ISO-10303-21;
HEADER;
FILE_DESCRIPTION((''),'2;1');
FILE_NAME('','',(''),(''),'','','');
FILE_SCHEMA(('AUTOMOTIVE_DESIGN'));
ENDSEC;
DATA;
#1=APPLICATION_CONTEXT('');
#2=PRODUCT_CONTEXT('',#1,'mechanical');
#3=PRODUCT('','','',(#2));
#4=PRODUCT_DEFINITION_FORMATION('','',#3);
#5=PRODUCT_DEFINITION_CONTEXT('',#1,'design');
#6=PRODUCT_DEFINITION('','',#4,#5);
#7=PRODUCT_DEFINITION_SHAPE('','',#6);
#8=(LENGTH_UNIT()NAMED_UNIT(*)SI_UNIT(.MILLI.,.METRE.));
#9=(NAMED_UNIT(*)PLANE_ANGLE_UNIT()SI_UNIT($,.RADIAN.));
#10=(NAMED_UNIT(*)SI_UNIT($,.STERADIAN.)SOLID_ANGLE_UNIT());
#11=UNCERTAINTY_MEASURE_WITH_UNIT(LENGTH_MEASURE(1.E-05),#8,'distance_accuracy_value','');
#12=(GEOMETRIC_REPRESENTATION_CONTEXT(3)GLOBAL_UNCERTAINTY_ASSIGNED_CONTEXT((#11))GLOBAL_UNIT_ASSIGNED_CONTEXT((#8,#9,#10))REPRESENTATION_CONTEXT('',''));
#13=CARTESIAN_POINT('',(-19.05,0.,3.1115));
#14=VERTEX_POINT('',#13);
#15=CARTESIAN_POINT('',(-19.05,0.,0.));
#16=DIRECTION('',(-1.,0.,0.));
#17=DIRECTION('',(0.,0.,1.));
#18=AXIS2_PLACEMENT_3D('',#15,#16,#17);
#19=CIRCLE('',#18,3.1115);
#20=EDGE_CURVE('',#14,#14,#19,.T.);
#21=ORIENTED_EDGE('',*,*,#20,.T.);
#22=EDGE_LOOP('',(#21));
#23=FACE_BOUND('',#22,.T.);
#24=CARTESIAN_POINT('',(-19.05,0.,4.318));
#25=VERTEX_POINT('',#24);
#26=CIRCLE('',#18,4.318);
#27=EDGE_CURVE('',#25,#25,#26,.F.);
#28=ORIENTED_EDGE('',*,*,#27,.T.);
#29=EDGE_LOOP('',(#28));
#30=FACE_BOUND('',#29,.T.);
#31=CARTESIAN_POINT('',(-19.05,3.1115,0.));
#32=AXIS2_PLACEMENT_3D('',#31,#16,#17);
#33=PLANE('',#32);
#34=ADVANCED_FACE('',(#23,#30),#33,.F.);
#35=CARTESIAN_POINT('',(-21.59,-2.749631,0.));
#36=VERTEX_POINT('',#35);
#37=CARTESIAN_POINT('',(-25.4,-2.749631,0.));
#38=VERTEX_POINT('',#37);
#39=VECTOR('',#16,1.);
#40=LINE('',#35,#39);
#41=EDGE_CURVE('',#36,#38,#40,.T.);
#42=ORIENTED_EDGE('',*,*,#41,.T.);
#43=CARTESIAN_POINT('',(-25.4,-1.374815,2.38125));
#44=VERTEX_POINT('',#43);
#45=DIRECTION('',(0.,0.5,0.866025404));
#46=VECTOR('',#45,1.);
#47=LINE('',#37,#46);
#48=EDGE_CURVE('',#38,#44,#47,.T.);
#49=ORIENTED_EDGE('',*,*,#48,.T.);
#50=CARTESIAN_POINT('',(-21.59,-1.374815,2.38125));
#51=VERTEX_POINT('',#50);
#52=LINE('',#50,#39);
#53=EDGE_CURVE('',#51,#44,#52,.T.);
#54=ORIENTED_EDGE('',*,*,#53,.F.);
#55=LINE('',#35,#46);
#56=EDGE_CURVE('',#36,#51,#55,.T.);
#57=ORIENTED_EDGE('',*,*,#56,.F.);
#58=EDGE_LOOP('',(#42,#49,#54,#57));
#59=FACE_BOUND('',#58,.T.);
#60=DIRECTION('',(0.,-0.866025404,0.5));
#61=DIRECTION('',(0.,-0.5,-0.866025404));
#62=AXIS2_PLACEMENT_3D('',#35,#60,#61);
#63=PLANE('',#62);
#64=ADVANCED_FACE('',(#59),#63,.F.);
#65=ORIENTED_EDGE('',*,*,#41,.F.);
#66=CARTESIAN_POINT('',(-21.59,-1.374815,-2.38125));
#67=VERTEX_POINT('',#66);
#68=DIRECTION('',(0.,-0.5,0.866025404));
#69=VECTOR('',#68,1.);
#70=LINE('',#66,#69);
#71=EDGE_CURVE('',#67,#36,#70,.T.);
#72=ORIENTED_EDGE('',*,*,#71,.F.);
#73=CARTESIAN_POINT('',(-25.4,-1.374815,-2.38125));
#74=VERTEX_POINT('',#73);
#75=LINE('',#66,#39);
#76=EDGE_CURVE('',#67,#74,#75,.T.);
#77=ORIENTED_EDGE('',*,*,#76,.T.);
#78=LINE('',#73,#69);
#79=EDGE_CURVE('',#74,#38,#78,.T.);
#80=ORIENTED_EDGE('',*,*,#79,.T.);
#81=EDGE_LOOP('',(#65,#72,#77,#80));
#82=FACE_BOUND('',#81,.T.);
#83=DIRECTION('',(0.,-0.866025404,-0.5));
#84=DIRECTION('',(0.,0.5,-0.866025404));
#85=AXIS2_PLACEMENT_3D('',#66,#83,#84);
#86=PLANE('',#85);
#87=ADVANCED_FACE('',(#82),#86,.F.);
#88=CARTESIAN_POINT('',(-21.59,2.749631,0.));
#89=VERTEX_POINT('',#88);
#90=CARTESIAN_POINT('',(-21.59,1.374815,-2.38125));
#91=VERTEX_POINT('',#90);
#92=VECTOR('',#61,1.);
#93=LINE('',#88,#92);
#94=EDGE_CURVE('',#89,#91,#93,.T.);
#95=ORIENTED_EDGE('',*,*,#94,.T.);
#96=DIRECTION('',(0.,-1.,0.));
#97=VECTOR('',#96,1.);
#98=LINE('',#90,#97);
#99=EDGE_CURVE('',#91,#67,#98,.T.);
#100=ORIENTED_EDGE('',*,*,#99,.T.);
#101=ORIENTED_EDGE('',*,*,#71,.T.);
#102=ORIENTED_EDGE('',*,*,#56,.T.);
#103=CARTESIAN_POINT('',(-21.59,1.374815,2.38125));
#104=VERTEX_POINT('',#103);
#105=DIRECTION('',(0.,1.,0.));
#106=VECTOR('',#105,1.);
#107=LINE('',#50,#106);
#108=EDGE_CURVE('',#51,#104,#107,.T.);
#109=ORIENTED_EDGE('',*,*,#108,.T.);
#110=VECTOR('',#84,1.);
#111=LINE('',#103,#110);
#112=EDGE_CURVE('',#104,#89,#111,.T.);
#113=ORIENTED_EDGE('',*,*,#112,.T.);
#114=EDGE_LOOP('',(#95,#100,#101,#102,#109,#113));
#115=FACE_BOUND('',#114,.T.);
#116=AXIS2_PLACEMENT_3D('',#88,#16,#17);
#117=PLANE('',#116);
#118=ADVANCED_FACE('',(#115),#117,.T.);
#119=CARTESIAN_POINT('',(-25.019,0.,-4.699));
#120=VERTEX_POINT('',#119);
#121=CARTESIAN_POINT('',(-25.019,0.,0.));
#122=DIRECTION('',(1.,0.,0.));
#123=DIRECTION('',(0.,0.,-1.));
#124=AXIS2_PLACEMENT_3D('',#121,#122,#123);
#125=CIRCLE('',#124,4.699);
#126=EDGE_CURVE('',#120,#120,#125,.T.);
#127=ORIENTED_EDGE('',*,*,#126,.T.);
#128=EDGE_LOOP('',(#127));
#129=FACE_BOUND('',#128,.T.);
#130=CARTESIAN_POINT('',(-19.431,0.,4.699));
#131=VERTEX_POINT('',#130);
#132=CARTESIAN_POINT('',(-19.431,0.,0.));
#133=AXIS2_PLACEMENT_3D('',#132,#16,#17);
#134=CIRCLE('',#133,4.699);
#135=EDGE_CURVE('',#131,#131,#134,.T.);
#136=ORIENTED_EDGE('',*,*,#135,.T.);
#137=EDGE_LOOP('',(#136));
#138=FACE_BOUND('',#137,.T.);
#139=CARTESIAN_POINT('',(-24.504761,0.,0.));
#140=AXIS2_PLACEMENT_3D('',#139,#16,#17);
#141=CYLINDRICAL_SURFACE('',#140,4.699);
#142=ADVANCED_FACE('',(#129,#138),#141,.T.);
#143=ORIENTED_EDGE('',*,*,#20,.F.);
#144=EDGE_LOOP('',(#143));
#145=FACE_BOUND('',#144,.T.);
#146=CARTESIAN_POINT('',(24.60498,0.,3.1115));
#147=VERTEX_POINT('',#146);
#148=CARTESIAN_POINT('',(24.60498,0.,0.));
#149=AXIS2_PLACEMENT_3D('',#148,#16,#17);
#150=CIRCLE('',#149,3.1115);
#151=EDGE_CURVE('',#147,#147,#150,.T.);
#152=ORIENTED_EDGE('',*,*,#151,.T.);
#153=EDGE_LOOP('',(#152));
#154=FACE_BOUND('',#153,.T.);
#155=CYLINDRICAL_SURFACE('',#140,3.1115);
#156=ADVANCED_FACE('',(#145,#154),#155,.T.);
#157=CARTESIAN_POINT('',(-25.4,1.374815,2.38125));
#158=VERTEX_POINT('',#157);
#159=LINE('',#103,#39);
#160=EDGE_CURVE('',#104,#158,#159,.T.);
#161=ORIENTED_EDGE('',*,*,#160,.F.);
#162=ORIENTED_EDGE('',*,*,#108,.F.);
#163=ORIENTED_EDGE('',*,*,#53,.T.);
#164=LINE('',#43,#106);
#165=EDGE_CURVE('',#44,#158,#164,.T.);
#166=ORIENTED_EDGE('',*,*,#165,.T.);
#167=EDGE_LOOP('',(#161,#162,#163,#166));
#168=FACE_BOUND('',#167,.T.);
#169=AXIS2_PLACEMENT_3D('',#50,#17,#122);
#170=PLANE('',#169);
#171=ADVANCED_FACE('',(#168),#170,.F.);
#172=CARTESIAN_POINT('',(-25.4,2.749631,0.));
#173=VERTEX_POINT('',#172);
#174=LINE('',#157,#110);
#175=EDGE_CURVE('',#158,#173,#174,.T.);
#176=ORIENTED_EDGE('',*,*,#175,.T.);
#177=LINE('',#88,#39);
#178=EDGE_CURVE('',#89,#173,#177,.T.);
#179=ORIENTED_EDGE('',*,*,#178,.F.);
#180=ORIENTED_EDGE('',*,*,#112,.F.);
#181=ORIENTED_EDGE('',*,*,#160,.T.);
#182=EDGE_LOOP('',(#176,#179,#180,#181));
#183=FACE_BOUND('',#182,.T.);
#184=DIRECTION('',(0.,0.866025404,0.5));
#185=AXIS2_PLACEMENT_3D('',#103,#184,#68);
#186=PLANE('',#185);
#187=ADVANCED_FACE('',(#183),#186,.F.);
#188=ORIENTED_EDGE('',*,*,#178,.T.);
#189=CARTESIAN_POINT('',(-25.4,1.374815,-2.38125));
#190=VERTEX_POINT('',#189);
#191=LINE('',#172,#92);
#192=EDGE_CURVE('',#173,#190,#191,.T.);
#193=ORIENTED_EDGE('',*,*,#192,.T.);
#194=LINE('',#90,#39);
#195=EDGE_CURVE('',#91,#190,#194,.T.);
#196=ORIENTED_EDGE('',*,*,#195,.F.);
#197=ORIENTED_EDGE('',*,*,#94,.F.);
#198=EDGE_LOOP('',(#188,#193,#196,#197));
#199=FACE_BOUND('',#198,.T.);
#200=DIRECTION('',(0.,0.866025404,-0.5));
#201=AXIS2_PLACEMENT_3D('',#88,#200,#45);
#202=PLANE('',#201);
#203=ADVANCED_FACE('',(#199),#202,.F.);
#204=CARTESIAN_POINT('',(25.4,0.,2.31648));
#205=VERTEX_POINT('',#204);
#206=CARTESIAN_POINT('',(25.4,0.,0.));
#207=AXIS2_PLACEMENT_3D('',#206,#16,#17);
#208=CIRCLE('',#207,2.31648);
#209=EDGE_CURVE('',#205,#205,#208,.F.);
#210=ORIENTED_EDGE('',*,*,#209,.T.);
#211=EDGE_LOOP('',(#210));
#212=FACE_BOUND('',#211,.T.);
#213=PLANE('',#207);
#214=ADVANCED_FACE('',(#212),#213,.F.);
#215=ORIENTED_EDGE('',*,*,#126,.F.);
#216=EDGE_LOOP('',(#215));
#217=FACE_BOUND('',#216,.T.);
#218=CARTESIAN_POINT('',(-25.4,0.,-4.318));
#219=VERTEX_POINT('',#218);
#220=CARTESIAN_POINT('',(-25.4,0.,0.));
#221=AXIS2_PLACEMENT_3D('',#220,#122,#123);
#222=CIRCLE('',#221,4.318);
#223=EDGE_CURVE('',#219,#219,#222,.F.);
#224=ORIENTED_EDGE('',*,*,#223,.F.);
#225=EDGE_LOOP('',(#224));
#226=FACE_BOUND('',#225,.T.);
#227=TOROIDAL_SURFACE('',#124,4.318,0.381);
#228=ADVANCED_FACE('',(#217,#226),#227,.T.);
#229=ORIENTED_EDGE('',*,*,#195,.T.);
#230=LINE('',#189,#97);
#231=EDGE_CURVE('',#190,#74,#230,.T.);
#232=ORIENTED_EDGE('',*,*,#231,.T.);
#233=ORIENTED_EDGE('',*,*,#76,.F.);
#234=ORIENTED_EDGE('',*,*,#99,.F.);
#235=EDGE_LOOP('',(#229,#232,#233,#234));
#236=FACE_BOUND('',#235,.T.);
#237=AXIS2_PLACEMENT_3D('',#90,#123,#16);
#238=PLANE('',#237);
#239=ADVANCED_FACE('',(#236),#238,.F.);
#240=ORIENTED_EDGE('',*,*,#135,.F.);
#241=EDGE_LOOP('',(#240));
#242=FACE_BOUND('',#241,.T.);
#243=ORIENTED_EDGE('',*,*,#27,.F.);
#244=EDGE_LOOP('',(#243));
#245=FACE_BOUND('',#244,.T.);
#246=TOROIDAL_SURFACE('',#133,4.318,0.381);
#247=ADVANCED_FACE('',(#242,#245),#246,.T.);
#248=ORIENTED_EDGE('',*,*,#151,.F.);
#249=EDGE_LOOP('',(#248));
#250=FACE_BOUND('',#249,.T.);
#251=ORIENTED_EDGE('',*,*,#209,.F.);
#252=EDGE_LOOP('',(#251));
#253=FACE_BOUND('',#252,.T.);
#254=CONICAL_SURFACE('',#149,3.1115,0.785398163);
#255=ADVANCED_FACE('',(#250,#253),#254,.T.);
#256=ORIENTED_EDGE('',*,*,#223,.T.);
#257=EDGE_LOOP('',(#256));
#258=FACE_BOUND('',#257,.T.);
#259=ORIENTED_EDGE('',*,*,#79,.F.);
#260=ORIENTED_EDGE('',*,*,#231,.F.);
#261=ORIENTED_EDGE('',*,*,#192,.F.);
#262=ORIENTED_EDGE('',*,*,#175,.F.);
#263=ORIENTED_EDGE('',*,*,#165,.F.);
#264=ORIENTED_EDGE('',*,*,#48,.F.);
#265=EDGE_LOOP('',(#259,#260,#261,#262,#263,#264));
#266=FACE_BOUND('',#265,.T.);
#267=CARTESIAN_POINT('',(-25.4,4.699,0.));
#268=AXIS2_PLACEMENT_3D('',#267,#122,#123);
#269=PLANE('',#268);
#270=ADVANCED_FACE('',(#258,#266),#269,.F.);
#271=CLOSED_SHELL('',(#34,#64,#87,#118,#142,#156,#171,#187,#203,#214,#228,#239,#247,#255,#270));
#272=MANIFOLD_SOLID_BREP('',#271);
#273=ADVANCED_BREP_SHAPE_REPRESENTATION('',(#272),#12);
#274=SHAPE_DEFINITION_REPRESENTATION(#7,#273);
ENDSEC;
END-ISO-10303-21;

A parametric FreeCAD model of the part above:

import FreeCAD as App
import Part
import Sketcher
from FreeCAD import Vector
Q = App.Units.Quantity


def edges_at(feature, points):
    """Names of the edges that pass closest to the given points."""
    edges = feature.Shape.Edges
    near = lambda p: min(range(len(edges)), key=lambda i: edges[i].distToShape(Part.Vertex(*p))[0])
    return sorted({f"Edge{near(p) + 1}" for p in points})


def add_polygon(sketch, points):
    """Adds a closed chain of lines whose ends are joined by coincident constraints."""
    first, n = sketch.GeometryCount, len(points)
    for a, b in zip(points, points[1:] + points[:1]):
        sketch.addGeometry(Part.LineSegment(App.Vector(*a, 0), App.Vector(*b, 0)), False)
    for i in range(n):
        sketch.addConstraint(Sketcher.Constraint("Coincident", first + i, 2, first + (i + 1) % n, 1))

doc = App.newDocument("Part")
params = doc.addObject("Spreadsheet::Sheet", "Params")
for row, (alias, value) in enumerate([
    ("sketch1_width", "2 in"),
    ("sketch1_width2", "1.75 in"),
    ("sketch1_height", "0.0625 in"),
    ("sketch1_height2", "0.185 in"),
    ("revolution_angle", "360 deg"),
    ("pocket1_length", "0.15 in"),
    ("fillet_radius", "0.015 in"),
    ("chamfer_size", "0.0313 in"),
], start=1):
    params.set(f"A{row}", alias)
    params.set(f"B{row}", "=" + value)
    params.setAlias(f"B{row}", alias)

body = doc.addObject("PartDesign::Body", "Body")

# Sketch on XY plane
sketch1 = body.newObject("Sketcher::SketchObject", "Sketch")
sketch1.AttachmentSupport = (doc.getObject("XY_Plane"), [""])
sketch1.MapMode = "FlatFace"
add_polygon(sketch1, [(25.4, 0), (25.4, 3.1), (-19.1, 3.1), (-19.1, 4.7), (-25.4, 4.7), (-25.4, 0)])  # lines 0-5
sketch1.addConstraint(Sketcher.Constraint("Vertical", 0))
sketch1.addConstraint(Sketcher.Constraint("Horizontal", 1))
sketch1.addConstraint(Sketcher.Constraint("Vertical", 2))
sketch1.addConstraint(Sketcher.Constraint("Horizontal", 3))
sketch1.addConstraint(Sketcher.Constraint("Vertical", 4))
sketch1.addConstraint(Sketcher.Constraint("Horizontal", 5))
sketch1.addConstraint(Sketcher.Constraint("Symmetric", 4, 2, 5, 2, -1, 1))
sketch1.addConstraint(Sketcher.Constraint("DistanceX", 5, 1, 5, 2, Q("2 in")))
sketch1.addConstraint(Sketcher.Constraint("DistanceX", 1, 2, 1, 1, Q("1.75 in")))
sketch1.addConstraint(Sketcher.Constraint("DistanceY", 2, 1, 2, 2, Q("0.0625 in")))
sketch1.addConstraint(Sketcher.Constraint("DistanceY", 4, 2, 4, 1, Q("0.185 in")))
sketch1.setExpression("Constraints[13]", "Params.sketch1_width")
sketch1.setExpression("Constraints[14]", "Params.sketch1_width2")
sketch1.setExpression("Constraints[15]", "Params.sketch1_height")
sketch1.setExpression("Constraints[16]", "Params.sketch1_height2")
revolution = body.newObject("PartDesign::Revolution", "Revolution")
revolution.Profile = sketch1
revolution.ReferenceAxis = (sketch1, ["H_Axis"])
revolution.setExpression("Angle", "Params.revolution_angle")

# Sketch on YZ plane
sketch2 = body.newObject("Sketcher::SketchObject", "Sketch001")
sketch2.AttachmentSupport = (doc.getObject("YZ_Plane"), [""])
sketch2.MapMode = "FlatFace"
sketch2.AttachmentOffset = App.Placement(Vector(0, 0, -1 * 25.4), App.Rotation())
add_polygon(sketch2, [(2.7, 0), (1.4, -2.4), (-1.4, -2.4), (-2.7, 0), (-1.4, 2.4), (1.4, 2.4)])  # lines 0-5
sketch2.addConstraint(Sketcher.Constraint("Horizontal", 1))
sketch2.addConstraint(Sketcher.Constraint("Horizontal", 4))
sketch2.addConstraint(Sketcher.Constraint("Symmetric", 0, 2, 3, 2, -1, 1))
sketch2.addConstraint(Sketcher.Constraint("Symmetric", 2, 2, 5, 2, -1, 1))
sketch2.addConstraint(Sketcher.Constraint("PointOnObject", 2, 2, -1))
sketch2.addConstraint(Sketcher.Constraint("Parallel", 2, 5))
sketch2.addConstraint(Sketcher.Constraint("Vertical", 1, 2, 3, 2))
sketch2.addConstraint(Sketcher.Constraint("Angle", 0, Q("-120 deg")))
sketch2.addConstraint(Sketcher.Constraint("DistanceY", 0, 2, -1, 1, Q("0.09375 in")))
sketch2.addConstraint(Sketcher.Constraint("DistanceX", 1, 2, 1, 1, Q("2.749631 mm")))
pocket1 = body.newObject("PartDesign::Pocket", "Pocket")
pocket1.Profile = sketch2
pocket1.setExpression("Length", "Params.pocket1_length")
pocket1.Reversed = True
doc.recompute()

fillet = body.newObject("PartDesign::Fillet", "Fillet")
fillet.Base = (pocket1, edges_at(pocket1, [(-25.4, -4.699, 0), (-19.05, -4.699, 0)]))
fillet.setExpression("Radius", "Params.fillet_radius")
doc.recompute()

chamfer = body.newObject("PartDesign::Chamfer", "Chamfer")
chamfer.Base = (fillet, edges_at(fillet, [(25.4, -3.111, 0)]))
chamfer.setExpression("Size", "Params.chamfer_size")

doc.recompute()
